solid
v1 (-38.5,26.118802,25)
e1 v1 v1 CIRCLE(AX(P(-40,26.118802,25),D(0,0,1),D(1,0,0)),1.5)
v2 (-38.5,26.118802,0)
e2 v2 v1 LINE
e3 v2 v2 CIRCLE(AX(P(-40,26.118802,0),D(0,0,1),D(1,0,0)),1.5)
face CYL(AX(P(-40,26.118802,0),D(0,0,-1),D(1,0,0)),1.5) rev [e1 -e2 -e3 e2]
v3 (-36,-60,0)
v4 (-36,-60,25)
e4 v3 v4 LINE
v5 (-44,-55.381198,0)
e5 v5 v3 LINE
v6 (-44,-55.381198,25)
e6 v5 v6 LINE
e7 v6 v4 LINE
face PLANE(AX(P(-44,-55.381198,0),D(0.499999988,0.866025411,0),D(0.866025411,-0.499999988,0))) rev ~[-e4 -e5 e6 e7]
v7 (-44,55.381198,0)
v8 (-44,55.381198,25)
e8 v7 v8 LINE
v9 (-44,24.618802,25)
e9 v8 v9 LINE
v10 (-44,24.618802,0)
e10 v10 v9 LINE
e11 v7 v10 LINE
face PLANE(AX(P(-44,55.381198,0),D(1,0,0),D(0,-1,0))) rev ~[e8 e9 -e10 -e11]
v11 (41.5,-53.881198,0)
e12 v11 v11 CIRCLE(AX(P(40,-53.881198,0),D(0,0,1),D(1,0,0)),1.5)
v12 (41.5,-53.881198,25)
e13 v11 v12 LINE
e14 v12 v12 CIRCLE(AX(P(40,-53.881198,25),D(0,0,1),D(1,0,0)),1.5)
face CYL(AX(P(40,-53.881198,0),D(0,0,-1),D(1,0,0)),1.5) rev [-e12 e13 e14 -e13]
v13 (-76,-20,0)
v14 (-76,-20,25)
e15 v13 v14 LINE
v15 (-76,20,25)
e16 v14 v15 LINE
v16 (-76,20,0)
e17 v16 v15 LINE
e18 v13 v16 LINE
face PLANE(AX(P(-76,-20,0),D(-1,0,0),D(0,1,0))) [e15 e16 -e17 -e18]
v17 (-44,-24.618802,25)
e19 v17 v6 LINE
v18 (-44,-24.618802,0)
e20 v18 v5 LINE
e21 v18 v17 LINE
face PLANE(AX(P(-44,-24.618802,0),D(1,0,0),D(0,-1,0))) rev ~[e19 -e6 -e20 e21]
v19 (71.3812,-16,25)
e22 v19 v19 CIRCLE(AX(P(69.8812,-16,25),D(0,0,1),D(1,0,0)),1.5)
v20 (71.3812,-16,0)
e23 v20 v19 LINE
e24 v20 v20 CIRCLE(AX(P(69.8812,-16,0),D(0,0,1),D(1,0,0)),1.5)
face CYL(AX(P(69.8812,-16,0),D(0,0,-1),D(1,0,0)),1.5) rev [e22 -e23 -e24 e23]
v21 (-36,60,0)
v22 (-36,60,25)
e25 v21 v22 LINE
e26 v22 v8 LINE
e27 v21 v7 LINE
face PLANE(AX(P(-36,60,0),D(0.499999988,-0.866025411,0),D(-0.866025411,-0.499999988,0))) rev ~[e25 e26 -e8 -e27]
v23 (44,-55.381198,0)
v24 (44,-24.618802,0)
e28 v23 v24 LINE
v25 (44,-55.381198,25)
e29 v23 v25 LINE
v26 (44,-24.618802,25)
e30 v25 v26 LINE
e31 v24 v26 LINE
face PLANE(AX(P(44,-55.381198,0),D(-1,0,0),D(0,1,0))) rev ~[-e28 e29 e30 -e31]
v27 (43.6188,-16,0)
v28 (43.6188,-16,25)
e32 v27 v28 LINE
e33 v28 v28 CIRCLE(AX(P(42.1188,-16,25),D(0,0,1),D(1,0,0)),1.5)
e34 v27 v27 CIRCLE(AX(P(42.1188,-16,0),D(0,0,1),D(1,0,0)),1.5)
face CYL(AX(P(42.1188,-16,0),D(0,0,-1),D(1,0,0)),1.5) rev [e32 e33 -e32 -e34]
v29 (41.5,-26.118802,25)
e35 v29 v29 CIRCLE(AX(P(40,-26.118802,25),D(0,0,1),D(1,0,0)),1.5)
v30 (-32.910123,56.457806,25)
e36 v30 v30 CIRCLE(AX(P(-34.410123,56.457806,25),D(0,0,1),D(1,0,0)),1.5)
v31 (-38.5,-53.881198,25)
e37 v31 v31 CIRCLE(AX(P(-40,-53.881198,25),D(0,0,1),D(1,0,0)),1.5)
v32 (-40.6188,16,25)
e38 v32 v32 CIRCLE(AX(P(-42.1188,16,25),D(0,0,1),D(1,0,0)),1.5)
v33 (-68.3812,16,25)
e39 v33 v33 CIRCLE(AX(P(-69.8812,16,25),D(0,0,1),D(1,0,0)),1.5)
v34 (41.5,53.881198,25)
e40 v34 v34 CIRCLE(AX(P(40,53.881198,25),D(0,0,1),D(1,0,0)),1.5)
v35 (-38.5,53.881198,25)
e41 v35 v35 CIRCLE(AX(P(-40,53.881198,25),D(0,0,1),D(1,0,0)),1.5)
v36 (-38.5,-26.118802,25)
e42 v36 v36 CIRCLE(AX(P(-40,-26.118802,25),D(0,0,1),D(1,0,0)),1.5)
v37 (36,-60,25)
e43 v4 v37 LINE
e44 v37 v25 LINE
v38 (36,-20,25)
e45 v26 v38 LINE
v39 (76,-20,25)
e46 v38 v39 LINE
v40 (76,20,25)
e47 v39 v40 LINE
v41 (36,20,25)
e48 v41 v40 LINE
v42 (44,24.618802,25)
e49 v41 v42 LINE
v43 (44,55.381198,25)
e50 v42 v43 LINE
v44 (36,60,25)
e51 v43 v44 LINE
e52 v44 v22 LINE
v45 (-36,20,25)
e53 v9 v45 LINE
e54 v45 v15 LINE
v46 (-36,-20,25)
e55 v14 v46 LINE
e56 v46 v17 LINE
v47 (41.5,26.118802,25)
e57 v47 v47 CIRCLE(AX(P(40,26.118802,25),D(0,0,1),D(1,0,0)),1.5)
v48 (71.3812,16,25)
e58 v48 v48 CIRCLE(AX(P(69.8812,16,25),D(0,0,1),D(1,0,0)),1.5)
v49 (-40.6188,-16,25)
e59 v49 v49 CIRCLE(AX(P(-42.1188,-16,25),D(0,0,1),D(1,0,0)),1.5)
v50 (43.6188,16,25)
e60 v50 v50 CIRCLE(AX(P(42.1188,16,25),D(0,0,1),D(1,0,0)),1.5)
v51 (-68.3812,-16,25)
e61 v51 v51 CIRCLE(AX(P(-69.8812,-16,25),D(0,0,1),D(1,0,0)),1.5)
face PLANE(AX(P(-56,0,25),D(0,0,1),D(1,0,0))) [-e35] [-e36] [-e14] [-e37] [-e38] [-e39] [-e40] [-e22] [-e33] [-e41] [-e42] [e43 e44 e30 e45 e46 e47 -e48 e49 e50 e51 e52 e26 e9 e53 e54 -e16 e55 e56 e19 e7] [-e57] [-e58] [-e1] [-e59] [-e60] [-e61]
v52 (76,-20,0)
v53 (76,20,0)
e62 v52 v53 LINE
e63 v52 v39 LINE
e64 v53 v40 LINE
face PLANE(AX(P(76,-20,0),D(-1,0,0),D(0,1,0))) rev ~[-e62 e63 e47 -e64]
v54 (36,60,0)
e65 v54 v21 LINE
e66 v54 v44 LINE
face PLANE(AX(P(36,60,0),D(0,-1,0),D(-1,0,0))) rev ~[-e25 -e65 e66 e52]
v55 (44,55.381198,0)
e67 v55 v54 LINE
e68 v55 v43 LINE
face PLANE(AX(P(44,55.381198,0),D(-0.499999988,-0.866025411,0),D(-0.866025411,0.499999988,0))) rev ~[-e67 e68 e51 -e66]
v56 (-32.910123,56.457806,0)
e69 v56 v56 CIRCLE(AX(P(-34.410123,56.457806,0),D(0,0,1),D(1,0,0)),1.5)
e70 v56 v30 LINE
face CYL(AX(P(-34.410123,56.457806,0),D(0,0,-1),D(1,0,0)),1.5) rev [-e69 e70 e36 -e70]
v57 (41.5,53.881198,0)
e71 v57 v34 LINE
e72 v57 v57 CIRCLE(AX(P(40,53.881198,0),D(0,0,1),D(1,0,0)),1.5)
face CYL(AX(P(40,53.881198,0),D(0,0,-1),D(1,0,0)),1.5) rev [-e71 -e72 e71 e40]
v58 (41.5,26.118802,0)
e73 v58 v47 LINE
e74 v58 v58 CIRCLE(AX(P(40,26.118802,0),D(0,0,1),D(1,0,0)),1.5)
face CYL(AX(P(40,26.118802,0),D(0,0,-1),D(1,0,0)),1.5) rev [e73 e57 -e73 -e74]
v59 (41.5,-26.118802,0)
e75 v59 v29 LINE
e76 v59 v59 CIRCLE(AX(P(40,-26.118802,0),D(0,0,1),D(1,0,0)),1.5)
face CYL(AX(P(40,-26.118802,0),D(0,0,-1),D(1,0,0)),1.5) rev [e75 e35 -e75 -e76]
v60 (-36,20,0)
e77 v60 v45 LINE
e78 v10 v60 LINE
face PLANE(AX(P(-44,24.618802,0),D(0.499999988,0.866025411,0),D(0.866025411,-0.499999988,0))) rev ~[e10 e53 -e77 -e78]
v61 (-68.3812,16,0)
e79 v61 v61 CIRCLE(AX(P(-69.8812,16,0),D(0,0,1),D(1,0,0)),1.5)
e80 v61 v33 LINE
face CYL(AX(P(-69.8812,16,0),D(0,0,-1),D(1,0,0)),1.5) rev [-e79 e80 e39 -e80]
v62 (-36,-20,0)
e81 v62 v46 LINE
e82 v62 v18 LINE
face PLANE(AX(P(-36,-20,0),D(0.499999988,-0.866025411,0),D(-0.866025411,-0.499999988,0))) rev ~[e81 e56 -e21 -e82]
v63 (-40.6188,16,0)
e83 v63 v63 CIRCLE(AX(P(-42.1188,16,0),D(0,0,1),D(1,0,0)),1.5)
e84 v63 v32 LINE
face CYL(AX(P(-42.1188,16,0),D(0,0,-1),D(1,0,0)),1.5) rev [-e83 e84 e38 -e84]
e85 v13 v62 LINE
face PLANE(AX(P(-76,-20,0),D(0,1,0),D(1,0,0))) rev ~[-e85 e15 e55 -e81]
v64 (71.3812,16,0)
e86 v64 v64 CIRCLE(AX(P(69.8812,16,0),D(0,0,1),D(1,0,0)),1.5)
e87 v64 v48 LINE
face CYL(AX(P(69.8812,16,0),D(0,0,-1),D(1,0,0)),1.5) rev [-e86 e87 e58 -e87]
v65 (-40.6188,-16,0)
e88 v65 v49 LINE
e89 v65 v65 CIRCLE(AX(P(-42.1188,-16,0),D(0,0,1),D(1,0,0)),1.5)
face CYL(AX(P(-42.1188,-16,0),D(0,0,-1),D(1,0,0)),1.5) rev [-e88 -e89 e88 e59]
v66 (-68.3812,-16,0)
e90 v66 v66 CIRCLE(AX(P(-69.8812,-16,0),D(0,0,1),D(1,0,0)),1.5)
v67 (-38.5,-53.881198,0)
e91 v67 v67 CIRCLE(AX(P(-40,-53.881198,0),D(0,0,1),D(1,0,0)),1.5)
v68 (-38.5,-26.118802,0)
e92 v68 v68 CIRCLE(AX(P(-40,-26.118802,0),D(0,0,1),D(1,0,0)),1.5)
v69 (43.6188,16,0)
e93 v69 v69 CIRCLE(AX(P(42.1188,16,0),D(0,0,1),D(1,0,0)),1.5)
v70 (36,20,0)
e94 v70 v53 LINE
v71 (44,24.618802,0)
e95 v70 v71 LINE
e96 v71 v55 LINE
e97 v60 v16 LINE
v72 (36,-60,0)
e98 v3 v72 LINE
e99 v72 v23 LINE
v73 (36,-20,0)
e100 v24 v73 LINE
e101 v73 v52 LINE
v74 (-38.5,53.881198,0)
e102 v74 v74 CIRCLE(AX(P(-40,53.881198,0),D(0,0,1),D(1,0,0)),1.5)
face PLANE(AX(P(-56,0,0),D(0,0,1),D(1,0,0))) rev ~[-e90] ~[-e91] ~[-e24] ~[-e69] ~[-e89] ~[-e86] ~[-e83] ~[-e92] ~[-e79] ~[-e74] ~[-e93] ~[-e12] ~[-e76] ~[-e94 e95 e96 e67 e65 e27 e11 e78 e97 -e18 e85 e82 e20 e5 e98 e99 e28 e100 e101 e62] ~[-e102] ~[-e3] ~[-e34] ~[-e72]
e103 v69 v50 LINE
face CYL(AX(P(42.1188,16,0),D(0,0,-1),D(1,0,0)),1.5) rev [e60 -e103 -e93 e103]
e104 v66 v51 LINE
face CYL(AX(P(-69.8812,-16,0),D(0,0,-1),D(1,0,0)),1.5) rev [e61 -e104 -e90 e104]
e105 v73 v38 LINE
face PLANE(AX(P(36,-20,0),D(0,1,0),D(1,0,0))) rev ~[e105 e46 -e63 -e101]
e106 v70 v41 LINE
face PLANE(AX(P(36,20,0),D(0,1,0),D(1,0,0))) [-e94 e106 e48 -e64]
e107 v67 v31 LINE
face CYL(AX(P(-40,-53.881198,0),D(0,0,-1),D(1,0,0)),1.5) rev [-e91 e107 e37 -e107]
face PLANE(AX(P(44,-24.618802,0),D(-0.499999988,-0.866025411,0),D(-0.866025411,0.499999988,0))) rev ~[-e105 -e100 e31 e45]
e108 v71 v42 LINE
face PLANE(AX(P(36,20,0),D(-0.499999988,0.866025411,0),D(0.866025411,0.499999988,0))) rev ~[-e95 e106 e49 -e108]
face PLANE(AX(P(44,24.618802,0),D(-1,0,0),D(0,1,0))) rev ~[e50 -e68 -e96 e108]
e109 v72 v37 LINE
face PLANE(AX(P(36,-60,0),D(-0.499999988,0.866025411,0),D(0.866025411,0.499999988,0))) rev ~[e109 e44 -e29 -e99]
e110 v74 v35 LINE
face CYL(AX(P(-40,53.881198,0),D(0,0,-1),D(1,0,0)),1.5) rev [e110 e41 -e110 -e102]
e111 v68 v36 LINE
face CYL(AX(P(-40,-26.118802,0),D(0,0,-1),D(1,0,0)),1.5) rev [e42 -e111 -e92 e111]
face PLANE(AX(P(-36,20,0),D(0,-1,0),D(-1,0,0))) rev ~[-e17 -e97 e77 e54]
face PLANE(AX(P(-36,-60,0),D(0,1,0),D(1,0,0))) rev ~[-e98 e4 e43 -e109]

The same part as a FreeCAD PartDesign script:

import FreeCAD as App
import Part
import Sketcher
from FreeCAD import Vector
Q = App.Units.Quantity


def add_polygon(sketch, points):
    """Adds a closed chain of lines whose ends are joined by coincident constraints."""
    first, n = sketch.GeometryCount, len(points)
    for a, b in zip(points, points[1:] + points[:1]):
        sketch.addGeometry(Part.LineSegment(App.Vector(*a, 0), App.Vector(*b, 0)), False)
    for i in range(n):
        sketch.addConstraint(Sketcher.Constraint("Coincident", first + i, 2, first + (i + 1) % n, 1))

doc = App.newDocument("Part")
body = doc.addObject("PartDesign::Body", "Body")

sketch1 = body.newObject("Sketcher::SketchObject", "Sketch")
sketch1.AttachmentSupport = (doc.getObject("XY_Plane"), [""])
sketch1.MapMode = "FlatFace"
add_polygon(sketch1, [(-76, 20), (-76, -20), (-36, -20), (-44, -24.6), (-44, -55.4), (-36, -60), (36, -60), (44, -55.4), (44, -24.6), (36, -20), (76, -20), (76, 20), (36, 20), (44, 24.6), (44, 55.4), (36, 60), (-36, 60), (-44, 55.4), (-44, 24.6), (-36, 20)])
sketch1.addGeometry(Part.Circle(Vector(-40, -53.9, 0), Vector(0, 0, 1), 1.5), False)
sketch1.addGeometry(Part.Circle(Vector(-69.9, -16, 0), Vector(0, 0, 1), 1.5), False)
sketch1.addGeometry(Part.Circle(Vector(-40, -26.1, 0), Vector(0, 0, 1), 1.5), False)
sketch1.addGeometry(Part.Circle(Vector(-42.1, -16, 0), Vector(0, 0, 1), 1.5), False)
sketch1.addGeometry(Part.Circle(Vector(40, -53.9, 0), Vector(0, 0, 1), 1.5), False)
sketch1.addGeometry(Part.Circle(Vector(40, -26.1, 0), Vector(0, 0, 1), 1.5), False)
sketch1.addGeometry(Part.Circle(Vector(42.1, -16, 0), Vector(0, 0, 1), 1.5), False)
sketch1.addGeometry(Part.Circle(Vector(69.9, -16, 0), Vector(0, 0, 1), 1.5), False)
sketch1.addGeometry(Part.Circle(Vector(-69.9, 16, 0), Vector(0, 0, 1), 1.5), False)
sketch1.addGeometry(Part.Circle(Vector(-42.1, 16, 0), Vector(0, 0, 1), 1.5), False)
sketch1.addGeometry(Part.Circle(Vector(-40, 26.1, 0), Vector(0, 0, 1), 1.5), False)
sketch1.addGeometry(Part.Circle(Vector(-40, 53.9, 0), Vector(0, 0, 1), 1.5), False)
sketch1.addGeometry(Part.Circle(Vector(-34.4, 56.5, 0), Vector(0, 0, 1), 1.5), False)
sketch1.addGeometry(Part.Circle(Vector(42.1, 16, 0), Vector(0, 0, 1), 1.5), False)
sketch1.addGeometry(Part.Circle(Vector(40, 26.1, 0), Vector(0, 0, 1), 1.5), False)
sketch1.addGeometry(Part.Circle(Vector(69.9, 16, 0), Vector(0, 0, 1), 1.5), False)
sketch1.addGeometry(Part.Circle(Vector(40, 53.9, 0), Vector(0, 0, 1), 1.5), False)
sketch1.addConstraint(Sketcher.Constraint("Vertical", 0))
sketch1.addConstraint(Sketcher.Constraint("Horizontal", 1))
sketch1.addConstraint(Sketcher.Constraint("Vertical", 3))
sketch1.addConstraint(Sketcher.Constraint("Horizontal", 5))
sketch1.addConstraint(Sketcher.Constraint("Vertical", 7))
sketch1.addConstraint(Sketcher.Constraint("Horizontal", 9))
sketch1.addConstraint(Sketcher.Constraint("Vertical", 10))
sketch1.addConstraint(Sketcher.Constraint("Horizontal", 11))
sketch1.addConstraint(Sketcher.Constraint("Vertical", 13))
sketch1.addConstraint(Sketcher.Constraint("Horizontal", 15))
sketch1.addConstraint(Sketcher.Constraint("Vertical", 17))
sketch1.addConstraint(Sketcher.Constraint("Horizontal", 19))
sketch1.addConstraint(Sketcher.Constraint("Equal", 20, 21))
sketch1.addConstraint(Sketcher.Constraint("Equal", 21, 22))
sketch1.addConstraint(Sketcher.Constraint("Equal", 22, 23))
sketch1.addConstraint(Sketcher.Constraint("Equal", 23, 24))
sketch1.addConstraint(Sketcher.Constraint("Equal", 24, 25))
sketch1.addConstraint(Sketcher.Constraint("Equal", 25, 26))
sketch1.addConstraint(Sketcher.Constraint("Equal", 26, 27))
sketch1.addConstraint(Sketcher.Constraint("Equal", 27, 28))
sketch1.addConstraint(Sketcher.Constraint("Equal", 28, 29))
sketch1.addConstraint(Sketcher.Constraint("Equal", 29, 30))
sketch1.addConstraint(Sketcher.Constraint("Equal", 30, 31))
sketch1.addConstraint(Sketcher.Constraint("Equal", 31, 32))
sketch1.addConstraint(Sketcher.Constraint("Equal", 32, 33))
sketch1.addConstraint(Sketcher.Constraint("Equal", 33, 34))
sketch1.addConstraint(Sketcher.Constraint("Equal", 34, 35))
sketch1.addConstraint(Sketcher.Constraint("Equal", 35, 36))
sketch1.addConstraint(Sketcher.Constraint("Symmetric", 27, 3, 28, 3, -1, 1))
sketch1.addConstraint(Sketcher.Constraint("Symmetric", 26, 3, 29, 3, -1, 1))
sketch1.addConstraint(Sketcher.Constraint("Symmetric", 25, 3, 30, 3, -1, 1))
sketch1.addConstraint(Sketcher.Constraint("Symmetric", 24, 3, 31, 3, -1, 1))
sketch1.addConstraint(Sketcher.Constraint("Symmetric", 23, 3, 33, 3, -1, 1))
sketch1.addConstraint(Sketcher.Constraint("Symmetric", 22, 3, 34, 3, -1, 1))
sketch1.addConstraint(Sketcher.Constraint("Symmetric", 21, 3, 35, 3, -1, 1))
sketch1.addConstraint(Sketcher.Constraint("Symmetric", 20, 3, 36, 3, -1, 1))
sketch1.addConstraint(Sketcher.Constraint("Symmetric", 0, 2, 10, 2, -1, 1))
sketch1.addConstraint(Sketcher.Constraint("Symmetric", 2, 2, 12, 2, -1, 1))
sketch1.addConstraint(Sketcher.Constraint("Symmetric", 4, 2, 14, 2, -1, 1))
sketch1.addConstraint(Sketcher.Constraint("Symmetric", 6, 2, 16, 2, -1, 1))
sketch1.addConstraint(Sketcher.Constraint("Symmetric", 8, 2, 18, 2, -1, 1))
sketch1.addConstraint(Sketcher.Constraint("Symmetric", 20, 3, 24, 3, -2))
sketch1.addConstraint(Sketcher.Constraint("Symmetric", 22, 3, 25, 3, -2))
sketch1.addConstraint(Sketcher.Constraint("Symmetric", 23, 3, 26, 3, -2))
sketch1.addConstraint(Sketcher.Constraint("Symmetric", 21, 3, 27, 3, -2))
sketch1.addConstraint(Sketcher.Constraint("Symmetric", 3, 2, 6, 2, -2))
sketch1.addConstraint(Sketcher.Constraint("Symmetric", 1, 2, 8, 2, -2))
sketch1.addConstraint(Sketcher.Constraint("Parallel", 2, 6))
sketch1.addConstraint(Sketcher.Constraint("Parallel", 4, 8))
sketch1.addConstraint(Sketcher.Constraint("Parallel", 6, 12))
sketch1.addConstraint(Sketcher.Constraint("Parallel", 8, 14))
sketch1.addConstraint(Sketcher.Constraint("Parallel", 12, 16))
sketch1.addConstraint(Sketcher.Constraint("Parallel", 14, 18))
sketch1.addConstraint(Sketcher.Constraint("Horizontal", 21, 3, 23, 3))
sketch1.addConstraint(Sketcher.Constraint("Horizontal", 2, 2, 7, 2))
sketch1.addConstraint(Sketcher.Constraint("Vertical", 20, 3, 22, 3))
sketch1.addConstraint(Sketcher.Constraint("Vertical", 1, 2, 4, 2))
sketch1.addConstraint(Sketcher.Constraint("Equal", 19, 0))
sketch1.addConstraint(Sketcher.Constraint("Diameter", 20, 3.0))
sketch1.addConstraint(Sketcher.Constraint("DistanceX", 1, 1, 1, 2, 40.0))
sketch1.addConstraint(Sketcher.Constraint("DistanceX", 5, 1, 5, 2, 72.0))
sketch1.addConstraint(Sketcher.Constraint("Angle", 2, Q("-150.000001 deg")))
sketch1.addConstraint(Sketcher.Constraint("DistanceX", 20, 3, -1, 1, 40.0))
sketch1.addConstraint(Sketcher.Constraint("DistanceY", 21, 3, -1, 1, 16.0))
sketch1.addConstraint(Sketcher.Constraint("DistanceX", 2, 2, -1, 1, 44.0))
sketch1.addConstraint(Sketcher.Constraint("DistanceY", 4, 2, -1, 1, 60.0))
sketch1.addConstraint(Sketcher.Constraint("DistanceX", 23, 3, 27, 3, 112.0))
sketch1.addConstraint(Sketcher.Constraint("DistanceY", 24, 3, 34, 3, 80.0))
sketch1.addConstraint(Sketcher.Constraint("DistanceY", 22, 3, 2, 2, 1.5))
sketch1.addConstraint(Sketcher.Constraint("DistanceX", 21, 3, -1, 1, 69.8812))
sketch1.addConstraint(Sketcher.Constraint("DistanceY", 31, 3, 32, 3, 2.576608))
sketch1.addConstraint(Sketcher.Constraint("DistanceX", 32, 3, -1, 1, 34.410123))
pad1 = body.newObject("PartDesign::Pad", "Pad")
pad1.Profile = sketch1
pad1.Length = 25

doc.recompute()
